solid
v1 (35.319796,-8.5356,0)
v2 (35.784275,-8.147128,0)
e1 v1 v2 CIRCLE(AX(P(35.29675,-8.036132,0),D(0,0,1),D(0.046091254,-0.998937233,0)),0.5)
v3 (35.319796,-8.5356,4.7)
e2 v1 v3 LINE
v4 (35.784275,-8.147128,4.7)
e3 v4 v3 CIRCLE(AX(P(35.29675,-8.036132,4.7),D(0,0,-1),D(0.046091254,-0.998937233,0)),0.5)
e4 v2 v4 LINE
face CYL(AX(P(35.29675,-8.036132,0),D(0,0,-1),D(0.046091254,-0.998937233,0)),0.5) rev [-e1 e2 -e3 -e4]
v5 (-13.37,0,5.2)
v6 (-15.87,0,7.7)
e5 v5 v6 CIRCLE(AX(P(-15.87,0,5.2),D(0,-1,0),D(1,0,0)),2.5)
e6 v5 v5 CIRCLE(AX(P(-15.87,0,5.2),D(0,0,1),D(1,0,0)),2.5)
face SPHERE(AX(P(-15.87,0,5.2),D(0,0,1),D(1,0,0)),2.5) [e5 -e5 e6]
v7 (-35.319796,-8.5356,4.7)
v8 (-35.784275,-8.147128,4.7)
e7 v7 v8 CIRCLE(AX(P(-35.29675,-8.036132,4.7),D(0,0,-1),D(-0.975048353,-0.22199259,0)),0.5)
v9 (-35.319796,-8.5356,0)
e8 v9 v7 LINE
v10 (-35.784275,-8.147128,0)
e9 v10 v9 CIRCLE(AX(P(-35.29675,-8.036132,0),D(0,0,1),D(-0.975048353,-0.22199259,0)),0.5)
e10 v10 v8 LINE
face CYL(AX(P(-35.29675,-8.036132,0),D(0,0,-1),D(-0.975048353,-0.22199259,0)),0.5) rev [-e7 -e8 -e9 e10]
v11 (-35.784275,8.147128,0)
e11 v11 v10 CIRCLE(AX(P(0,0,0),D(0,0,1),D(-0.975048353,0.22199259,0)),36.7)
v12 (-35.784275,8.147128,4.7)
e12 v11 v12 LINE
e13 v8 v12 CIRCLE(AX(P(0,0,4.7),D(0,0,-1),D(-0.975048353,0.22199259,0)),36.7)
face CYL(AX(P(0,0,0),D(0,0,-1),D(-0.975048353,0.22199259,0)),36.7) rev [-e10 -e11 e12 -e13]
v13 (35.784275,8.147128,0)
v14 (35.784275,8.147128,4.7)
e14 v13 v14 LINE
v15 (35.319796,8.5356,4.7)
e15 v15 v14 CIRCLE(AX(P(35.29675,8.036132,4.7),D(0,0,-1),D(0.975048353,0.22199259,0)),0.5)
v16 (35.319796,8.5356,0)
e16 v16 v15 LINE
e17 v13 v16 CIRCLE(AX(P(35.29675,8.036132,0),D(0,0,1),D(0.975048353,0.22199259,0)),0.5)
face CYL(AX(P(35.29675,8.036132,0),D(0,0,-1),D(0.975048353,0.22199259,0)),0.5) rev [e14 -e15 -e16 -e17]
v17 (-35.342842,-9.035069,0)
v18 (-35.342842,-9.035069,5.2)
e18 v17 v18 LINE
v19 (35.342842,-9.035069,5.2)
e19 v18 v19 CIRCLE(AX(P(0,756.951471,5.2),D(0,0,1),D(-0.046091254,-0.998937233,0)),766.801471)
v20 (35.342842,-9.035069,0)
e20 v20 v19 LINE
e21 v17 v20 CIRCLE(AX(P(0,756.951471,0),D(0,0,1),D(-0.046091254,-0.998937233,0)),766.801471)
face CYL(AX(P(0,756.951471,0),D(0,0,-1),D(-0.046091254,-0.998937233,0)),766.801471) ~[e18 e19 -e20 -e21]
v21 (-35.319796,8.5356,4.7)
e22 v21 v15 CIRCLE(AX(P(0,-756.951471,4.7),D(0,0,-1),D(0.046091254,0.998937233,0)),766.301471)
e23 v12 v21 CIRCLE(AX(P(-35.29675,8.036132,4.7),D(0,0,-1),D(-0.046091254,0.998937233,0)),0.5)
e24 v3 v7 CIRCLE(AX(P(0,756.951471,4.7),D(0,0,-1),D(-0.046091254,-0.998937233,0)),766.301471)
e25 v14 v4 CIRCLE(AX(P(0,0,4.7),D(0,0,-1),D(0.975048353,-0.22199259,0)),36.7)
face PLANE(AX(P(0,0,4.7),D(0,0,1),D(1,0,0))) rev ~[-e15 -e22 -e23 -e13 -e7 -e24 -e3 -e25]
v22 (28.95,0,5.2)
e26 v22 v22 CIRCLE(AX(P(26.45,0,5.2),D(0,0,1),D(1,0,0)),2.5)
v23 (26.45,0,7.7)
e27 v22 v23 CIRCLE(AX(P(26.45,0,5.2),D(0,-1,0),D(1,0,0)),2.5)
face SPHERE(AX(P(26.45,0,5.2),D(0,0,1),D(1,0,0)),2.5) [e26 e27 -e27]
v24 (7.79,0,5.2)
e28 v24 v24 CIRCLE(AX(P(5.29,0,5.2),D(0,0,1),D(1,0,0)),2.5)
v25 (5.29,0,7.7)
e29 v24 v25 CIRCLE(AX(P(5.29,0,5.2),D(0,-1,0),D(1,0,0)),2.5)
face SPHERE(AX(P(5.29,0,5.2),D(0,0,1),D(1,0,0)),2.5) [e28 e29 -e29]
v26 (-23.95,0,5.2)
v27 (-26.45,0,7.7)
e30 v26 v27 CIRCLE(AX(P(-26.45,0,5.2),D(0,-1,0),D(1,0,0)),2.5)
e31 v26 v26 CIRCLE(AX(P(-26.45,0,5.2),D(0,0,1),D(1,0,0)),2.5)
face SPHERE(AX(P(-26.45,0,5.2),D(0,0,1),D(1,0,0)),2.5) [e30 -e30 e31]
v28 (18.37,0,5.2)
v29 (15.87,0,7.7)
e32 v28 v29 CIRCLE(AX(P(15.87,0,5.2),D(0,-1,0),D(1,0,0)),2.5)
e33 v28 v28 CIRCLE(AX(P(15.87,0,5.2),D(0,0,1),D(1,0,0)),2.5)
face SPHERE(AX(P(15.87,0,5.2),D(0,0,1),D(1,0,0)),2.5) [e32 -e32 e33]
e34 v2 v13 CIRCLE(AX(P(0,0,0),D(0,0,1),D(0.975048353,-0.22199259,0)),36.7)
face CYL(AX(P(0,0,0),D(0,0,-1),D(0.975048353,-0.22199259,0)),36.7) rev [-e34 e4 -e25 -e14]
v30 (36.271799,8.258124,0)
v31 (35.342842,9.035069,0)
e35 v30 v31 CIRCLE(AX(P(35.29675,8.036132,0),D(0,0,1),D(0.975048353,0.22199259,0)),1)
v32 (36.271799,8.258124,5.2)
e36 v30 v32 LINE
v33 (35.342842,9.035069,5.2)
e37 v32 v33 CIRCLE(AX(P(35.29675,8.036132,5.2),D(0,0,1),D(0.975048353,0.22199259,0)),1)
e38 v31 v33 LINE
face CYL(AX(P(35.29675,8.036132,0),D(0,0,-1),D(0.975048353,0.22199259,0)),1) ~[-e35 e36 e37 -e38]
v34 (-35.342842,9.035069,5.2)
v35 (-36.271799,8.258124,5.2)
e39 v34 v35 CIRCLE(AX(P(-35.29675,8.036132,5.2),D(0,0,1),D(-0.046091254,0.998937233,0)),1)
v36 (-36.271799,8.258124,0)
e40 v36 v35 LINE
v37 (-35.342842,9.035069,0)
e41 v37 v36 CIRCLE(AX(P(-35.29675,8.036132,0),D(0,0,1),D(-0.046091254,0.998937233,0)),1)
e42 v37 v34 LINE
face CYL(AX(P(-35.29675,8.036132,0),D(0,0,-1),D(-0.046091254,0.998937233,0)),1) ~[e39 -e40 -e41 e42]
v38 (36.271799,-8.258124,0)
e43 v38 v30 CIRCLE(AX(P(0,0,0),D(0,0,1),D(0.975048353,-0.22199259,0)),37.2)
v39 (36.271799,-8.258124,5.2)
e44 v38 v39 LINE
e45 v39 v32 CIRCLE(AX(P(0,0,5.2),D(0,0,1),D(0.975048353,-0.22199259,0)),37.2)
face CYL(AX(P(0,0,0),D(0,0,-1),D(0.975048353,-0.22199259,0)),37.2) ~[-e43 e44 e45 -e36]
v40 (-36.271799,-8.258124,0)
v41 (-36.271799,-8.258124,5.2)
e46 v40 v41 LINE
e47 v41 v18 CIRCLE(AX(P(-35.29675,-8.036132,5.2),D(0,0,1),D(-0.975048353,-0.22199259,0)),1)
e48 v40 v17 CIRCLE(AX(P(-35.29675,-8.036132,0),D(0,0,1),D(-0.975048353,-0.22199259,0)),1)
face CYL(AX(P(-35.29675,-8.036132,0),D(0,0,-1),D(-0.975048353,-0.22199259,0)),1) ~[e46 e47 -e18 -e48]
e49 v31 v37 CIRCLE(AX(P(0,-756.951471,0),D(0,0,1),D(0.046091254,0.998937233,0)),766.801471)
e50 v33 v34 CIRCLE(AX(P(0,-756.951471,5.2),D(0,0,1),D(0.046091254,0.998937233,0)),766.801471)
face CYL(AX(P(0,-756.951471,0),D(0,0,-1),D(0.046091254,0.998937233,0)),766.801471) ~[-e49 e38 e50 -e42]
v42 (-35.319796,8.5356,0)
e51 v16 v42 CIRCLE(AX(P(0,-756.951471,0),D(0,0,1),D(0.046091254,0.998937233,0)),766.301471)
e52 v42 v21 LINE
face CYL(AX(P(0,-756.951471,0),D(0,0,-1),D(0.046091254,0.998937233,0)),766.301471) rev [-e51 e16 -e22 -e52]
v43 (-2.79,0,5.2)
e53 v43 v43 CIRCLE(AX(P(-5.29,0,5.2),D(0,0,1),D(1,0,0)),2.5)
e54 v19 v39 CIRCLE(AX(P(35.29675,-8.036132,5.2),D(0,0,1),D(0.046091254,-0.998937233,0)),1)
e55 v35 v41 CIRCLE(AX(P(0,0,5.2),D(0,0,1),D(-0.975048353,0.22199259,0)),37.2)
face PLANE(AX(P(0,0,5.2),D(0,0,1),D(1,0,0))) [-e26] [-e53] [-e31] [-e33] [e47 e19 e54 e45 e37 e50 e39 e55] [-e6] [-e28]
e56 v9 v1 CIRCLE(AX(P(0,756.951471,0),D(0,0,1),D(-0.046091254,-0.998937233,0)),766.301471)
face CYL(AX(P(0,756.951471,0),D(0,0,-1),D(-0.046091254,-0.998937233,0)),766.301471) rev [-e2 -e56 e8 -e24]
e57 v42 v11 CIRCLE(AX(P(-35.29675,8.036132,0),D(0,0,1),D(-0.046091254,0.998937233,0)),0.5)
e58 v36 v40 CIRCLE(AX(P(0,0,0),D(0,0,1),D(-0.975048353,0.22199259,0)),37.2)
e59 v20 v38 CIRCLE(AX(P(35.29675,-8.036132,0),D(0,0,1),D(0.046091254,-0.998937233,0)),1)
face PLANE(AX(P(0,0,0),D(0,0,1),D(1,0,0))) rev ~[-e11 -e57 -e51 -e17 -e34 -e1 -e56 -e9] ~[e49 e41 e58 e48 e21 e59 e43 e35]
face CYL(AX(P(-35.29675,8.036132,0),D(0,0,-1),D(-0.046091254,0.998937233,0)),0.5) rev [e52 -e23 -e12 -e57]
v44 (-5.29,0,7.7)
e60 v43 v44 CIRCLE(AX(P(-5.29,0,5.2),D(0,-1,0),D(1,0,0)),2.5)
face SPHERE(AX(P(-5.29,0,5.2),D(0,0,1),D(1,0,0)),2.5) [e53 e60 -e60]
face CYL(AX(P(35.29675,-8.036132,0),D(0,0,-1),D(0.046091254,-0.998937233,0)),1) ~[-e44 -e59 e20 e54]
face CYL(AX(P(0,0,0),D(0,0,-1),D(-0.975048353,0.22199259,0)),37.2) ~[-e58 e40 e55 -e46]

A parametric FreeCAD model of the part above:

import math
import FreeCAD as App
import Part
import Sketcher
from FreeCAD import Vector
Q = App.Units.Quantity


def faces_at(feature, points):
    """Names of the faces that lie closest to the given points."""
    faces = feature.Shape.Faces
    near = lambda p: min(range(len(faces)), key=lambda i: faces[i].distToShape(Part.Vertex(*p))[0])
    return sorted({f"Face{near(p) + 1}" for p in points})

doc = App.newDocument("Part")
body = doc.addObject("PartDesign::Body", "Body")

sketch1 = body.newObject("Sketcher::SketchObject", "Sketch")
sketch1.AttachmentSupport = (doc.getObject("XY_Plane"), [""])
sketch1.MapMode = "FlatFace"
sketch1.addGeometry([
    Part.ArcOfCircle(Part.Circle(Vector(35.3, 8, 0), Vector(0, 0, 1), 1), math.radians(13), math.radians(87)),
    Part.ArcOfCircle(Part.Circle(Vector(0, -757, 0), Vector(0, 0, 1), 766.8), math.radians(87.36), math.radians(92.64)),
    Part.ArcOfCircle(Part.Circle(Vector(-35.3, 8, 0), Vector(0, 0, 1), 1), math.radians(93), math.radians(167)),
    Part.ArcOfCircle(Part.Circle(Vector(0, 0, 0), Vector(0, 0, 1), 37.2), math.radians(167), math.radians(193)),
    Part.ArcOfCircle(Part.Circle(Vector(-35.3, -8, 0), Vector(0, 0, 1), 1), math.radians(-167), math.radians(-93)),
    Part.ArcOfCircle(Part.Circle(Vector(0, 757, 0), Vector(0, 0, 1), 766.8), math.radians(-92.64), math.radians(-87.36)),
    Part.ArcOfCircle(Part.Circle(Vector(35.3, -8, 0), Vector(0, 0, 1), 1), math.radians(-87), math.radians(-13)),
    Part.ArcOfCircle(Part.Circle(Vector(0, 0, 0), Vector(0, 0, 1), 37.2), math.radians(-13), math.radians(13)),
], False)
sketch1.addConstraint([
    Sketcher.Constraint("Tangent", 0, 2, 1, 1),
    Sketcher.Constraint("Tangent", 1, 2, 2, 1),
    Sketcher.Constraint("Tangent", 2, 2, 3, 1),
    Sketcher.Constraint("Tangent", 3, 2, 4, 1),
    Sketcher.Constraint("Tangent", 4, 2, 5, 1),
    Sketcher.Constraint("Tangent", 5, 2, 6, 1),
    Sketcher.Constraint("Tangent", 6, 2, 7, 1),
    Sketcher.Constraint("Tangent", 7, 2, 0, 1),
    Sketcher.Constraint("Coincident", 3, 3, -1, 1),
    Sketcher.Constraint("Coincident", 7, 3, -1, 1),
    Sketcher.Constraint("Equal", 0, 2),
    Sketcher.Constraint("Equal", 2, 4),
    Sketcher.Constraint("Equal", 1, 5),
    Sketcher.Constraint("Equal", 4, 6),
    Sketcher.Constraint("Equal", 3, 7),
    Sketcher.Constraint("Symmetric", 1, 3, 5, 3, -1, 1),
    Sketcher.Constraint("PointOnObject", 1, 3, -2),
    Sketcher.Constraint("Radius", 0, Q("1 mm")),
    Sketcher.Constraint("Radius", 3, Q("37.2 mm")),
    Sketcher.Constraint("Radius", 1, Q("766.801471 mm")),
    Sketcher.Constraint("DistanceX", 2, 2, -1, 1, Q("36.271799 mm")),
])
pad1 = body.newObject("PartDesign::Pad", "Pad")
pad1.Profile = sketch1
pad1.Length = 5.2
doc.recompute()

thickness = body.newObject("PartDesign::Thickness", "Thickness")
thickness.Base = (pad1, faces_at(pad1, [(0, 0, 0)]))
thickness.Value = 0.5
thickness.Reversed = True
thickness.Join = "Arc"

sketch2 = body.newObject("Sketcher::SketchObject", "Sketch001")
sketch2.AttachmentSupport = (doc.getObject("XZ_Plane"), [""])
sketch2.MapMode = "FlatFace"
sketch2.addGeometry([
    Part.LineSegment(Vector(15.9, 5.2, 0), Vector(18.4, 5.2, 0)),
    Part.ArcOfCircle(Part.Circle(Vector(15.9, 5.2, 0), Vector(0, 0, 1), 2.5), math.radians(0), math.radians(90)),
    Part.LineSegment(Vector(15.9, 7.7, 0), Vector(15.9, 5.2, 0)),
], False)
sketch2.addGeometry(Part.LineSegment(Vector(15.9, 5.2, 0), Vector(15.9, 7.7, 0)), True)
sketch2.addConstraint([
    Sketcher.Constraint("Coincident", 0, 2, 1, 1),
    Sketcher.Constraint("Coincident", 1, 2, 2, 1),
    Sketcher.Constraint("Coincident", 2, 2, 0, 1),
    Sketcher.Constraint("Horizontal", 0),
    Sketcher.Constraint("Vertical", 2),
    Sketcher.Constraint("Vertical", 3),
    Sketcher.Constraint("Coincident", 2, 2, 1, 3),
    Sketcher.Constraint("Coincident", 3, 1, 1, 3),
    Sketcher.Constraint("Equal", 2, 3),
    Sketcher.Constraint("Radius", 1, Q("2.5 mm")),
    Sketcher.Constraint("DistanceY", -1, 1, 1, 3, Q("5.2 mm")),
    Sketcher.Constraint("DistanceX", -1, 1, 1, 3, Q("15.87 mm")),
])
revolution = body.newObject("PartDesign::Revolution", "Revolution")
revolution.Profile = sketch2
revolution.ReferenceAxis = (sketch2, ["Axis0"])
revolution.Angle = 360

sketch3 = body.newObject("Sketcher::SketchObject", "Sketch002")
sketch3.AttachmentSupport = (doc.getObject("XZ_Plane"), [""])
sketch3.MapMode = "FlatFace"
sketch3.addGeometry([
    Part.LineSegment(Vector(-26.4, 5.2, 0), Vector(-23.9, 5.2, 0)),
    Part.ArcOfCircle(Part.Circle(Vector(-26.4, 5.2, 0), Vector(0, 0, 1), 2.5), math.radians(0), math.radians(90)),
    Part.LineSegment(Vector(-26.4, 7.7, 0), Vector(-26.4, 5.2, 0)),
], False)
sketch3.addGeometry(Part.LineSegment(Vector(-26.4, 5.2, 0), Vector(-26.4, 7.7, 0)), True)
sketch3.addConstraint([
    Sketcher.Constraint("Coincident", 0, 2, 1, 1),
    Sketcher.Constraint("Coincident", 1, 2, 2, 1),
    Sketcher.Constraint("Coincident", 2, 2, 0, 1),
    Sketcher.Constraint("Horizontal", 0),
    Sketcher.Constraint("Vertical", 2),
    Sketcher.Constraint("Vertical", 3),
    Sketcher.Constraint("Coincident", 2, 2, 1, 3),
    Sketcher.Constraint("Coincident", 3, 1, 1, 3),
    Sketcher.Constraint("Equal", 2, 3),
    Sketcher.Constraint("Radius", 1, Q("2.5 mm")),
    Sketcher.Constraint("DistanceY", -1, 1, 1, 3, Q("5.2 mm")),
    Sketcher.Constraint("DistanceX", 1, 3, -1, 1, Q("26.45 mm")),
])
revolution2 = body.newObject("PartDesign::Revolution", "Revolution001")
revolution2.Profile = sketch3
revolution2.ReferenceAxis = (sketch3, ["Axis0"])
revolution2.Angle = 360

sketch4 = body.newObject("Sketcher::SketchObject", "Sketch003")
sketch4.AttachmentSupport = (doc.getObject("XZ_Plane"), [""])
sketch4.MapMode = "FlatFace"
sketch4.addGeometry([
    Part.LineSegment(Vector(-15.9, 5.2, 0), Vector(-13.4, 5.2, 0)),
    Part.ArcOfCircle(Part.Circle(Vector(-15.9, 5.2, 0), Vector(0, 0, 1), 2.5), math.radians(0), math.radians(90)),
    Part.LineSegment(Vector(-15.9, 7.7, 0), Vector(-15.9, 5.2, 0)),
], False)
sketch4.addGeometry(Part.LineSegment(Vector(-15.9, 5.2, 0), Vector(-15.9, 7.7, 0)), True)
sketch4.addConstraint([
    Sketcher.Constraint("Coincident", 0, 2, 1, 1),
    Sketcher.Constraint("Coincident", 1, 2, 2, 1),
    Sketcher.Constraint("Coincident", 2, 2, 0, 1),
    Sketcher.Constraint("Horizontal", 0),
    Sketcher.Constraint("Vertical", 2),
    Sketcher.Constraint("Vertical", 3),
    Sketcher.Constraint("Coincident", 2, 2, 1, 3),
    Sketcher.Constraint("Coincident", 3, 1, 1, 3),
    Sketcher.Constraint("Equal", 2, 3),
    Sketcher.Constraint("Radius", 1, Q("2.5 mm")),
    Sketcher.Constraint("DistanceY", -1, 1, 1, 3, Q("5.2 mm")),
    Sketcher.Constraint("DistanceX", 1, 3, -1, 1, Q("15.87 mm")),
])
revolution3 = body.newObject("PartDesign::Revolution", "Revolution002")
revolution3.Profile = sketch4
revolution3.ReferenceAxis = (sketch4, ["Axis0"])
revolution3.Angle = 360

sketch5 = body.newObject("Sketcher::SketchObject", "Sketch004")
sketch5.AttachmentSupport = (doc.getObject("XZ_Plane"), [""])
sketch5.MapMode = "FlatFace"
sketch5.addGeometry([
    Part.LineSegment(Vector(-5.3, 5.2, 0), Vector(-2.8, 5.2, 0)),
    Part.ArcOfCircle(Part.Circle(Vector(-5.3, 5.2, 0), Vector(0, 0, 1), 2.5), math.radians(0), math.radians(90)),
    Part.LineSegment(Vector(-5.3, 7.7, 0), Vector(-5.3, 5.2, 0)),
], False)
sketch5.addGeometry(Part.LineSegment(Vector(-5.3, 5.2, 0), Vector(-5.3, 7.7, 0)), True)
sketch5.addConstraint([
    Sketcher.Constraint("Coincident", 0, 2, 1, 1),
    Sketcher.Constraint("Coincident", 1, 2, 2, 1),
    Sketcher.Constraint("Coincident", 2, 2, 0, 1),
    Sketcher.Constraint("Horizontal", 0),
    Sketcher.Constraint("Vertical", 2),
    Sketcher.Constraint("Vertical", 3),
    Sketcher.Constraint("Coincident", 2, 2, 1, 3),
    Sketcher.Constraint("Coincident", 3, 1, 1, 3),
    Sketcher.Constraint("Equal", 2, 3),
    Sketcher.Constraint("Radius", 1, Q("2.5 mm")),
    Sketcher.Constraint("DistanceY", -1, 1, 1, 3, Q("5.2 mm")),
    Sketcher.Constraint("DistanceX", 1, 3, -1, 1, Q("5.29 mm")),
])
revolution4 = body.newObject("PartDesign::Revolution", "Revolution003")
revolution4.Profile = sketch5
revolution4.ReferenceAxis = (sketch5, ["Axis0"])
revolution4.Angle = 360

sketch6 = body.newObject("Sketcher::SketchObject", "Sketch005")
sketch6.AttachmentSupport = (doc.getObject("XZ_Plane"), [""])
sketch6.MapMode = "FlatFace"
sketch6.addGeometry([
    Part.LineSegment(Vector(5.3, 5.2, 0), Vector(7.8, 5.2, 0)),
    Part.ArcOfCircle(Part.Circle(Vector(5.3, 5.2, 0), Vector(0, 0, 1), 2.5), math.radians(0), math.radians(90)),
    Part.LineSegment(Vector(5.3, 7.7, 0), Vector(5.3, 5.2, 0)),
], False)
sketch6.addGeometry(Part.LineSegment(Vector(5.3, 5.2, 0), Vector(5.3, 7.7, 0)), True)
sketch6.addConstraint([
    Sketcher.Constraint("Coincident", 0, 2, 1, 1),
    Sketcher.Constraint("Coincident", 1, 2, 2, 1),
    Sketcher.Constraint("Coincident", 2, 2, 0, 1),
    Sketcher.Constraint("Horizontal", 0),
    Sketcher.Constraint("Vertical", 2),
    Sketcher.Constraint("Vertical", 3),
    Sketcher.Constraint("Coincident", 2, 2, 1, 3),
    Sketcher.Constraint("Coincident", 3, 1, 1, 3),
    Sketcher.Constraint("Equal", 2, 3),
    Sketcher.Constraint("Radius", 1, Q("2.5 mm")),
    Sketcher.Constraint("DistanceY", -1, 1, 1, 3, Q("5.2 mm")),
    Sketcher.Constraint("DistanceX", -1, 1, 1, 3, Q("5.29 mm")),
])
revolution5 = body.newObject("PartDesign::Revolution", "Revolution004")
revolution5.Profile = sketch6
revolution5.ReferenceAxis = (sketch6, ["Axis0"])
revolution5.Angle = 360

sketch7 = body.newObject("Sketcher::SketchObject", "Sketch006")
sketch7.AttachmentSupport = (doc.getObject("XZ_Plane"), [""])
sketch7.MapMode = "FlatFace"
sketch7.addGeometry([
    Part.LineSegment(Vector(26.4, 5.2, 0), Vector(28.9, 5.2, 0)),
    Part.ArcOfCircle(Part.Circle(Vector(26.4, 5.2, 0), Vector(0, 0, 1), 2.5), math.radians(0), math.radians(90)),
    Part.LineSegment(Vector(26.4, 7.7, 0), Vector(26.4, 5.2, 0)),
], False)
sketch7.addGeometry(Part.LineSegment(Vector(26.4, 5.2, 0), Vector(26.4, 7.7, 0)), True)
sketch7.addConstraint([
    Sketcher.Constraint("Coincident", 0, 2, 1, 1),
    Sketcher.Constraint("Coincident", 1, 2, 2, 1),
    Sketcher.Constraint("Coincident", 2, 2, 0, 1),
    Sketcher.Constraint("Horizontal", 0),
    Sketcher.Constraint("Vertical", 2),
    Sketcher.Constraint("Vertical", 3),
    Sketcher.Constraint("Coincident", 2, 2, 1, 3),
    Sketcher.Constraint("Coincident", 3, 1, 1, 3),
    Sketcher.Constraint("Equal", 2, 3),
    Sketcher.Constraint("Radius", 1, Q("2.5 mm")),
    Sketcher.Constraint("DistanceY", -1, 1, 1, 3, Q("5.2 mm")),
    Sketcher.Constraint("DistanceX", -1, 1, 1, 3, Q("26.45 mm")),
])
revolution6 = body.newObject("PartDesign::Revolution", "Revolution005")
revolution6.Profile = sketch7
revolution6.ReferenceAxis = (sketch7, ["Axis0"])
revolution6.Angle = 360

doc.recompute()
